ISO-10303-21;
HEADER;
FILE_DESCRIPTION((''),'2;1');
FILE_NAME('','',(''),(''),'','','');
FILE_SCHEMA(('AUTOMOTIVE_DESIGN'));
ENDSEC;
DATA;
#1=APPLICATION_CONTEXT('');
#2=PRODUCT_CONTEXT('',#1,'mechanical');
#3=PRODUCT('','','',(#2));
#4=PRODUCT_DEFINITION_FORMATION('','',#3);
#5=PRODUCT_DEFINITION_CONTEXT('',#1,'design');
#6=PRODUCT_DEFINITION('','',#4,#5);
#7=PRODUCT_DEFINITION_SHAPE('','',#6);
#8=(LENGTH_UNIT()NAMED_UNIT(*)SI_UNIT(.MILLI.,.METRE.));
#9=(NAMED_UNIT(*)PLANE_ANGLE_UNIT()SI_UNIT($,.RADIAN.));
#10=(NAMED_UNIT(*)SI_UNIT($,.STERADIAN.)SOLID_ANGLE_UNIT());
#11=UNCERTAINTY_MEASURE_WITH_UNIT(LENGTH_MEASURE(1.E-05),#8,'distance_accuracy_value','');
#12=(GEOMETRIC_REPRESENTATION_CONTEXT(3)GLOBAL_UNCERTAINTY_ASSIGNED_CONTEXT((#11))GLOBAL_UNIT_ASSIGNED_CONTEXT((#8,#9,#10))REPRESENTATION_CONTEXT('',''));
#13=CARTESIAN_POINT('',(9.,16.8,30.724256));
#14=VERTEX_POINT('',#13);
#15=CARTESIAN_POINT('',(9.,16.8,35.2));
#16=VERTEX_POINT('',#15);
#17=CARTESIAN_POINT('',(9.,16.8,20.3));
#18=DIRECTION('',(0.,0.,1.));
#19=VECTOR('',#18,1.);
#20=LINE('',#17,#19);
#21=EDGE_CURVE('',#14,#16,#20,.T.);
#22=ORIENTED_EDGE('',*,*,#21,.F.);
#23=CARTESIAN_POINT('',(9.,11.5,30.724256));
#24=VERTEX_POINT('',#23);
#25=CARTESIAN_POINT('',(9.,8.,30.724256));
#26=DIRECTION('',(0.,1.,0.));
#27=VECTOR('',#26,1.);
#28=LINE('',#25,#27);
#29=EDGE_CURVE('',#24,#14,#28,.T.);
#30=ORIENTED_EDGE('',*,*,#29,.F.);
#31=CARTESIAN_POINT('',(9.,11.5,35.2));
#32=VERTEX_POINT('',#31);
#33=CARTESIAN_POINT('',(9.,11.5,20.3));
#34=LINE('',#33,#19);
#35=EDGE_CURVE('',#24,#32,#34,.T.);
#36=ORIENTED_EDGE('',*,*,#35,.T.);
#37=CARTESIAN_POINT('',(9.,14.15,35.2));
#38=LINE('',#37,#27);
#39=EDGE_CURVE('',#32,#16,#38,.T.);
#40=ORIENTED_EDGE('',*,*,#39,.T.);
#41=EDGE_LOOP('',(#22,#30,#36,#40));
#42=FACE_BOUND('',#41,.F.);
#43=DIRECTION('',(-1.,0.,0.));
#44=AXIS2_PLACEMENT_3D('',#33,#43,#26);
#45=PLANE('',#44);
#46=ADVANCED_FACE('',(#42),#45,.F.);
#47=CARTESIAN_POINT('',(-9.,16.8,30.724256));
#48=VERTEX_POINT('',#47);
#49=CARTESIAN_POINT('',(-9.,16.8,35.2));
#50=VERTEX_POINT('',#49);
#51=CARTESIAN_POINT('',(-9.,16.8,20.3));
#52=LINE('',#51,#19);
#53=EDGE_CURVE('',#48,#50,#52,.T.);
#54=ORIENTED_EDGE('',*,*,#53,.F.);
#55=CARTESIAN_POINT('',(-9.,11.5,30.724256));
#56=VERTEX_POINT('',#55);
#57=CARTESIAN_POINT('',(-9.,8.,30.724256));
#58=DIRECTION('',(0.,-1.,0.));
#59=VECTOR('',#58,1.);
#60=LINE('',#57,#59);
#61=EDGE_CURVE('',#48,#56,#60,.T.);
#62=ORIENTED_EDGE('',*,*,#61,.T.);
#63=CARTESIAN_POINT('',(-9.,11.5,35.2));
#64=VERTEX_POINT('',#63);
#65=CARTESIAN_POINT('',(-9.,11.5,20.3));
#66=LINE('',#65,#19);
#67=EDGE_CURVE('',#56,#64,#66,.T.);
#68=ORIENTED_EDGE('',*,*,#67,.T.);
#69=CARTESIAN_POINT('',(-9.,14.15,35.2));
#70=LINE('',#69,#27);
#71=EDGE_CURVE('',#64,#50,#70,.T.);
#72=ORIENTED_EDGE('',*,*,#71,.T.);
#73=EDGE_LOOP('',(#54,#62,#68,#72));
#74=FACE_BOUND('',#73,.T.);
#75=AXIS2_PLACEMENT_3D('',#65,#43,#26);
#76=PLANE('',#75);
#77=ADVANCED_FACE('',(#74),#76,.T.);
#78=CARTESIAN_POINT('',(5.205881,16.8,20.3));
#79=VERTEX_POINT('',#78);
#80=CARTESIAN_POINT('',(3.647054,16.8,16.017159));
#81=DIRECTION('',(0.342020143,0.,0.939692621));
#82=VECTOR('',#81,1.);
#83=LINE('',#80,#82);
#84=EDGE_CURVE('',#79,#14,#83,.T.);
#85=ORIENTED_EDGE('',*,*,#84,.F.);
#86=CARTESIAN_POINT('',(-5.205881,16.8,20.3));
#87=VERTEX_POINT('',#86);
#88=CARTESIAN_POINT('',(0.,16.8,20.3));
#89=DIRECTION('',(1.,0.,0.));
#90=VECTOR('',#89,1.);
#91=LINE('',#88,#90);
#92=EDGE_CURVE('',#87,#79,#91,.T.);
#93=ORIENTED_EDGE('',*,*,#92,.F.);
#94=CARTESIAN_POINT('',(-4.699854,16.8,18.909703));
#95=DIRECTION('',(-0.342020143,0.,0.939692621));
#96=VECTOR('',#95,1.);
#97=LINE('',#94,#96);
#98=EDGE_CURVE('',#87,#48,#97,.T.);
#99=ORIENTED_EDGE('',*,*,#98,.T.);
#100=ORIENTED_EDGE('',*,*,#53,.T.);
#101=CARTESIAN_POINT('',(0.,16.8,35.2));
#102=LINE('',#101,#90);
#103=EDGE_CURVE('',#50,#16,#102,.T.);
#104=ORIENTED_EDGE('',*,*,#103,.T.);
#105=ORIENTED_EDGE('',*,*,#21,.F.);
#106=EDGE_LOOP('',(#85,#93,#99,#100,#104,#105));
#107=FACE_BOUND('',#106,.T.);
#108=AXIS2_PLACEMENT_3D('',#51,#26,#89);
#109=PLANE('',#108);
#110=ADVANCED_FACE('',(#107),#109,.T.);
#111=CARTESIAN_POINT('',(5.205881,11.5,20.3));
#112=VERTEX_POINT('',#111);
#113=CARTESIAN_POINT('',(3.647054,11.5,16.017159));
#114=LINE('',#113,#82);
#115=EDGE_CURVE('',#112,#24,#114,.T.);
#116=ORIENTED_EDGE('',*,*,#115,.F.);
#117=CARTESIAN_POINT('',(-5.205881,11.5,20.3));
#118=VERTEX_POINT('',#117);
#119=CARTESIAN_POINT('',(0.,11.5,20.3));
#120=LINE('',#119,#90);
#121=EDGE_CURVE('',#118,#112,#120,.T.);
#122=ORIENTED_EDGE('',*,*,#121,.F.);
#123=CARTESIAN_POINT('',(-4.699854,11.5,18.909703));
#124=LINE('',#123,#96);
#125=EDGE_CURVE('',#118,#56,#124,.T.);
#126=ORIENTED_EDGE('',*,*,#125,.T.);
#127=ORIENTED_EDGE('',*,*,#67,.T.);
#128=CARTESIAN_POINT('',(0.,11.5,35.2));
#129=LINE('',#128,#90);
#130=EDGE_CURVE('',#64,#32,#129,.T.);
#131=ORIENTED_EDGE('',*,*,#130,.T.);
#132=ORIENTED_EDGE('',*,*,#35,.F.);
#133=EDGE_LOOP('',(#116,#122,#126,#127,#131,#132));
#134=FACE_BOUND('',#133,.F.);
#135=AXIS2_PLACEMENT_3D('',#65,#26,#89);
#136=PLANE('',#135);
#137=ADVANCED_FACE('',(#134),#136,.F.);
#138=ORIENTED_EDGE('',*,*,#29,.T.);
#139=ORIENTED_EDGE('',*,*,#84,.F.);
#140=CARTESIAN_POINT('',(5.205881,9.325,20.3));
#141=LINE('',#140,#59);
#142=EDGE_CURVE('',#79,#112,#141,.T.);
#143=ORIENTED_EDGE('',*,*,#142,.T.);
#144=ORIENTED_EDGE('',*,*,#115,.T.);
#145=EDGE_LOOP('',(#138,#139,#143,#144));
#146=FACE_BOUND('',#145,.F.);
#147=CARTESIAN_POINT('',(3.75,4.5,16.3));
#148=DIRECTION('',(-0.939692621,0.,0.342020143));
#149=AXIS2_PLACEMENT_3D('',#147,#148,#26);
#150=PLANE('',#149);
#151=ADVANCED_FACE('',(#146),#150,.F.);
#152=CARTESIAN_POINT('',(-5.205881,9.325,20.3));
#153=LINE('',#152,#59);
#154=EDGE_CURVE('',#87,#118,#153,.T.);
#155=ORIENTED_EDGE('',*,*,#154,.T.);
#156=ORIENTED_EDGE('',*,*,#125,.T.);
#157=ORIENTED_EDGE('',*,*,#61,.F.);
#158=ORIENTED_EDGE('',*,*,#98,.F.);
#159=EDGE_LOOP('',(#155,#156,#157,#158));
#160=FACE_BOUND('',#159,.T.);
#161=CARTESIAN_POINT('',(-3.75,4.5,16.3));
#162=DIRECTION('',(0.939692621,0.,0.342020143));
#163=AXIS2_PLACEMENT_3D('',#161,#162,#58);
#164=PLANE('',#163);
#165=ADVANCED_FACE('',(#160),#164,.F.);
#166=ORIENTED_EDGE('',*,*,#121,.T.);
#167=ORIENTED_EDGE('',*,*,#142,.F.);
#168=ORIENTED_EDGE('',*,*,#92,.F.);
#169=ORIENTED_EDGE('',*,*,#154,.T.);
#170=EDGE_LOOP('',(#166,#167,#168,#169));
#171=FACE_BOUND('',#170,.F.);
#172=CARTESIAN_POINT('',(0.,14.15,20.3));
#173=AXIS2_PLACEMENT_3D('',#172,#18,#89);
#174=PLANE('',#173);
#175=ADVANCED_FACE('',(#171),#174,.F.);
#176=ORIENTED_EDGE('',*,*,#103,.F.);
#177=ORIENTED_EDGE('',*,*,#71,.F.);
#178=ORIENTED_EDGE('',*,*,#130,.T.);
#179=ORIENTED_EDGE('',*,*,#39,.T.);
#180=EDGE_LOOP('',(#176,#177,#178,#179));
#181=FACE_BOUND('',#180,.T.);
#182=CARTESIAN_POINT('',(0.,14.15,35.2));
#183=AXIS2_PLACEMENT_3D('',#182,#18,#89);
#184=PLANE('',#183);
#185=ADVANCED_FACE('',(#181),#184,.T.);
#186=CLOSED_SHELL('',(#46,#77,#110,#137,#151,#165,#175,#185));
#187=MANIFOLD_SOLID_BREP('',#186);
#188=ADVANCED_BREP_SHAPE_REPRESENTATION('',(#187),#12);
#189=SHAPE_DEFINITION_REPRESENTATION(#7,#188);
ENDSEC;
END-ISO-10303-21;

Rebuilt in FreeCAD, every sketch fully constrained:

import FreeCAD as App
import Part
import Sketcher

V = App.Vector
Q = App.Units.Quantity


def add_polygon(sketch, points):
    """Adds a closed chain of lines whose ends are joined by coincident constraints."""
    first, n = sketch.GeometryCount, len(points)
    for a, b in zip(points, points[1:] + points[:1]):
        sketch.addGeometry(Part.LineSegment(App.Vector(*a, 0), App.Vector(*b, 0)), False)
    for i in range(n):
        sketch.addConstraint(Sketcher.Constraint("Coincident", first + i, 2, first + (i + 1) % n, 1))

doc = App.newDocument("Part")
body = doc.addObject("PartDesign::Body", "Body")

# Sketch on XY plane
sketch1 = body.newObject("Sketcher::SketchObject", "Sketch")
sketch1.AttachmentSupport = (doc.getObject("XY_Plane"), [""])
sketch1.MapMode = "FlatFace"
add_polygon(sketch1, [(0, 13.3), (0, 0), (17.5, 0), (17.5, 13.3)])  # lines 0-3
sketch1.addConstraint([
    Sketcher.Constraint("Vertical", 0),
    Sketcher.Constraint("Horizontal", 1),
    Sketcher.Constraint("Vertical", 2),
    Sketcher.Constraint("Horizontal", 3),
    Sketcher.Constraint("Coincident", 0, 2, -1, 1),
    Sketcher.Constraint("DistanceX", 1, 1, 1, 2, Q("17.5 mm")),
    Sketcher.Constraint("DistanceY", 0, 2, 0, 1, Q("13.3 mm")),
])
pad1 = body.newObject("PartDesign::Pad", "Pad")
pad1.Profile = sketch1
pad1.Length = 19.7
body2 = doc.addObject("PartDesign::Body", "Body001")
doc.recompute()

body.Placement = App.Placement(V(3.75, 6, 30.3), App.Rotation(V(0, 1, 0), 20))
boolean = body2.newObject("PartDesign::Boolean", "Boolean")
boolean.Type = "Fuse"
boolean.addObjects([body])
body3 = doc.addObject("PartDesign::Body", "Body002")
doc.recompute()

mirroring = doc.addObject("Part::Mirroring", "Mirroring")
mirroring.Source = body2
mirroring.Base = V(0, 0, 0)
mirroring.Normal = V(1, 0, 0)
body3.BaseFeature = mirroring
doc.recompute()
body4 = doc.addObject("PartDesign::Body", "Body003")

# Sketch on XY plane
sketch2 = body4.newObject("Sketcher::SketchObject", "Sketch001")
sketch2.AttachmentSupport = (doc.getObject("XY_Plane003"), [""])
sketch2.MapMode = "FlatFace"
add_polygon(sketch2, [(0, 13.3), (0, 0), (17.5, 0), (17.5, 13.3)])  # lines 0-3
sketch2.addConstraint([
    Sketcher.Constraint("Vertical", 0),
    Sketcher.Constraint("Horizontal", 1),
    Sketcher.Constraint("Vertical", 2),
    Sketcher.Constraint("Horizontal", 3),
    Sketcher.Constraint("Coincident", 0, 2, -1, 1),
    Sketcher.Constraint("DistanceX", 1, 1, 1, 2, Q("17.5 mm")),
    Sketcher.Constraint("DistanceY", 0, 2, 0, 1, Q("13.3 mm")),
])
pad2 = body4.newObject("PartDesign::Pad", "Pad001")
pad2.Profile = sketch2
pad2.Length = 19.7
body5 = doc.addObject("PartDesign::Body", "Body004")
body5.AllowCompound = True
doc.recompute()

body4.Placement = App.Placement(V(3.75, 6, 30.3), App.Rotation(V(0, 1, 0), 20))
boolean2 = body5.newObject("PartDesign::Boolean", "Boolean001")
boolean2.Type = "Fuse"
boolean2.addObjects([body4])
doc.recompute()

boolean3 = body5.newObject("PartDesign::Boolean", "Boolean002")
boolean3.Type = "Fuse"
boolean3.addObjects([body3])
body6 = doc.addObject("PartDesign::Body", "Body005")

# Sketch on XY plane
sketch3 = body6.newObject("Sketcher::SketchObject", "Sketch002")
sketch3.AttachmentSupport = (doc.getObject("XY_Plane005"), [""])
sketch3.MapMode = "FlatFace"
sketch3.AttachmentOffset = App.Placement(V(0, 0, 34.3), App.Rotation())
add_polygon(sketch3, [(-9, 18.3), (-9, 13), (9, 13), (9, 18.3)])  # lines 0-3
sketch3.addConstraint([
    Sketcher.Constraint("Vertical", 0),
    Sketcher.Constraint("Horizontal", 1),
    Sketcher.Constraint("Vertical", 2),
    Sketcher.Constraint("Horizontal", 3),
    Sketcher.Constraint("DistanceX", 1, 1, 1, 2, Q("18 mm")),
    Sketcher.Constraint("DistanceY", 0, 2, 0, 1, Q("5.3 mm")),
    Sketcher.Constraint("DistanceX", 0, 2, -1, 1, Q("9 mm")),
    Sketcher.Constraint("DistanceY", -1, 1, 0, 2, Q("13 mm")),
])
pad3 = body6.newObject("PartDesign::Pad", "Pad002")
pad3.Profile = sketch3
pad3.Length = 14.9
doc.recompute()

boolean4 = body6.newObject("PartDesign::Boolean", "Boolean003")
boolean4.Type = "Cut"
boolean4.addObjects([body5])
body7 = doc.addObject("PartDesign::Body", "Body006")
doc.recompute()

body6.Placement = App.Placement(V(0, -1.5, -14), App.Rotation(V(0, 0, 1), 0))
boolean5 = body7.newObject("PartDesign::Boolean", "Boolean004")
boolean5.Type = "Fuse"
boolean5.addObjects([body6])
mirroring.Visibility = False

doc.recompute()
